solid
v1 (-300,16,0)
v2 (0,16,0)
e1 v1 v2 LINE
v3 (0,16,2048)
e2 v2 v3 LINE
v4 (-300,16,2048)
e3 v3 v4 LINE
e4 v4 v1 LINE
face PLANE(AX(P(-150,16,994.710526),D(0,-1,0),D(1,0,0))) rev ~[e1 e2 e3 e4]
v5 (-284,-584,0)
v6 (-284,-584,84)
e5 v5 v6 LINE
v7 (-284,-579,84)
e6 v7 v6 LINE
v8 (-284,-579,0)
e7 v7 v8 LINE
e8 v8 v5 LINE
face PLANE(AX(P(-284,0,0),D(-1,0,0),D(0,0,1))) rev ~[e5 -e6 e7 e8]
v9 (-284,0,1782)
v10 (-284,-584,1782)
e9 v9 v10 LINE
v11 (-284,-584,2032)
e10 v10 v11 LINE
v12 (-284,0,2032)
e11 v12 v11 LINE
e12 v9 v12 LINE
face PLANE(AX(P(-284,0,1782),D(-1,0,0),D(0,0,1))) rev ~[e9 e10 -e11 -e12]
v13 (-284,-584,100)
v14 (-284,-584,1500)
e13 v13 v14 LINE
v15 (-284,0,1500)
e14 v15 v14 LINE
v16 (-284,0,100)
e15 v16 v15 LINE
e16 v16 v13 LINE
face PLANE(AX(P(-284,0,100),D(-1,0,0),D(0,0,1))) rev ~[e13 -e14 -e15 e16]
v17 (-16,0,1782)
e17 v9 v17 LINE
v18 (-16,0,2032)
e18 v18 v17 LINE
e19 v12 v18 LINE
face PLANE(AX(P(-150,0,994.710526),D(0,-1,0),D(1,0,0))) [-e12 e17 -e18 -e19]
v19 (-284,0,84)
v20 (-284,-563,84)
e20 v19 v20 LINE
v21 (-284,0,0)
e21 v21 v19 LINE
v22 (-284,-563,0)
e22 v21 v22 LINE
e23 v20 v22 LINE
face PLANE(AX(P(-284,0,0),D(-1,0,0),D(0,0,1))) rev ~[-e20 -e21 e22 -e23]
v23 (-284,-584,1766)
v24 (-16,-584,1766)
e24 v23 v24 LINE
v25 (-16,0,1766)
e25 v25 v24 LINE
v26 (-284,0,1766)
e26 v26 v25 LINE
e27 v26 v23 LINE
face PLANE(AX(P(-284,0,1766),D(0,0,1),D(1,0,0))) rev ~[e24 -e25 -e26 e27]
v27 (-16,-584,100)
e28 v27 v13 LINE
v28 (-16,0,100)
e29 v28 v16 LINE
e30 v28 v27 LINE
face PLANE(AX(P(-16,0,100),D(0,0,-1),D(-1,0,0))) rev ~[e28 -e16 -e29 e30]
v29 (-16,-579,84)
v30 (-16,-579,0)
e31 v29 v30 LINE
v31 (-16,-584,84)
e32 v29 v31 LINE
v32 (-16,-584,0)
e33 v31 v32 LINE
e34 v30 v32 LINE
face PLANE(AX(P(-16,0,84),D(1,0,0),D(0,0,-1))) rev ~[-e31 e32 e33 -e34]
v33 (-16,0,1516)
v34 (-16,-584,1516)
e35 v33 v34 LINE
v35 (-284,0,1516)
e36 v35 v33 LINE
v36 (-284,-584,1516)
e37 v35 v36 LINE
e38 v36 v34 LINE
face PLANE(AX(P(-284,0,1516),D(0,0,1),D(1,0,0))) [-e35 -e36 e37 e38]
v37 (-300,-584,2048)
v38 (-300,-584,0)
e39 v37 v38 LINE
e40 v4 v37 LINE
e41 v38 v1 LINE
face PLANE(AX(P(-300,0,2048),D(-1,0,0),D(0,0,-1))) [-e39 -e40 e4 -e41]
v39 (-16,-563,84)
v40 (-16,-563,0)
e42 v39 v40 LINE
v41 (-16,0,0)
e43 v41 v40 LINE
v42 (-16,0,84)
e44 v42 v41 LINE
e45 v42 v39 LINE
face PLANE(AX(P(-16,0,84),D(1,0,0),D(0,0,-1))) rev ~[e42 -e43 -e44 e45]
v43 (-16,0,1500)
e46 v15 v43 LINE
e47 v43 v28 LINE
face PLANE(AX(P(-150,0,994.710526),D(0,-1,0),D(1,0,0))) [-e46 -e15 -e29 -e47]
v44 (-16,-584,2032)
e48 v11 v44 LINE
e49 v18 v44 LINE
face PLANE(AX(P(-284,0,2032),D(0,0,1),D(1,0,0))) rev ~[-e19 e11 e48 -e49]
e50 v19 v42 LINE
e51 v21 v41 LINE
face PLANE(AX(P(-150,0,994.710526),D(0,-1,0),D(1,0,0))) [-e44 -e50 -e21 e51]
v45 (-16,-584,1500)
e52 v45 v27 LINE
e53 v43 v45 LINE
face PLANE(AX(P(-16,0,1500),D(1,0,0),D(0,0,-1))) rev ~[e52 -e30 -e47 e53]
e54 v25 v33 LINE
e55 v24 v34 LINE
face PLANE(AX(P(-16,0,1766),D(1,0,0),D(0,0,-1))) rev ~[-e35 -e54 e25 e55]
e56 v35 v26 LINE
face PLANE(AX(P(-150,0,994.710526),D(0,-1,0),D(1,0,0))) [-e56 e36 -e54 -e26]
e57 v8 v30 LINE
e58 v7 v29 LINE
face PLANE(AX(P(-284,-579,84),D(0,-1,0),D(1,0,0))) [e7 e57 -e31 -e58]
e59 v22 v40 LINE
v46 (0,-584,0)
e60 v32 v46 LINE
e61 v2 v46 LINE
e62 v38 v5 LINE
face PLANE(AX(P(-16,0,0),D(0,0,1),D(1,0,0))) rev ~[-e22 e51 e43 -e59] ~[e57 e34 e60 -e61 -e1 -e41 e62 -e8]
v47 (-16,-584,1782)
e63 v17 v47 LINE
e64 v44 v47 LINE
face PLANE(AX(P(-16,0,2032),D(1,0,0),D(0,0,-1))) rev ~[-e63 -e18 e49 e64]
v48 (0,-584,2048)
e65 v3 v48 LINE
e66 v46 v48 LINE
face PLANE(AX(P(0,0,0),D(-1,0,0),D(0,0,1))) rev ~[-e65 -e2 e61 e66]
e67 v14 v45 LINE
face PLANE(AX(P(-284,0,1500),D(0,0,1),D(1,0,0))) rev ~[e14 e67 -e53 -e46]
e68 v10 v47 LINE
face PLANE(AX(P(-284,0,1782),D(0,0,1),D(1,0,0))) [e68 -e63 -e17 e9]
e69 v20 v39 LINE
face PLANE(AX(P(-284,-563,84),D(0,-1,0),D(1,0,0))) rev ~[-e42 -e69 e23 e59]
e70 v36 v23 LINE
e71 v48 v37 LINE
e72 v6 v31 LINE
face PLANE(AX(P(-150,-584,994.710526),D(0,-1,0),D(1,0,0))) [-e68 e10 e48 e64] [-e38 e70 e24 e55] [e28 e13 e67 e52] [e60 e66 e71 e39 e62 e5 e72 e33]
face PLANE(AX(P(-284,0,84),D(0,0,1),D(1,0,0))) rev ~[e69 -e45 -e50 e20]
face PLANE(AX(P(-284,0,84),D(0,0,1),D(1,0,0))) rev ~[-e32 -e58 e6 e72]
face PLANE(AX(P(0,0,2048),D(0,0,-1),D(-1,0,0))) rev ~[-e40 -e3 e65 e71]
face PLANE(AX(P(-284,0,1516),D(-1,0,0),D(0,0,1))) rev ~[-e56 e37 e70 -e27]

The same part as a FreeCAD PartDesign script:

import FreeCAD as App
import Part
import Sketcher


def add_polygon(sketch, points):
    """Adds a closed chain of lines whose ends are joined by coincident constraints."""
    first, n = sketch.GeometryCount, len(points)
    for a, b in zip(points, points[1:] + points[:1]):
        sketch.addGeometry(Part.LineSegment(App.Vector(*a, 0), App.Vector(*b, 0)), False)
    for i in range(n):
        sketch.addConstraint(Sketcher.Constraint("Coincident", first + i, 2, first + (i + 1) % n, 1))

doc = App.newDocument("Part")
params = doc.addObject("Spreadsheet::Sheet", "Params")
for row, (alias, value) in enumerate([
    ("sketch1_width", "300 mm"),
    ("sketch1_height", "2048 mm"),
    ("pad1_length", "16 mm"),
    ("sketch2_width", "16 mm"),
    ("sketch2_width2", "300 mm"),
    ("sketch2_height", "2048 mm"),
    ("sketch2_height2", "84 mm"),
    ("sketch2_height3", "250 mm"),
    ("pad2_length", "584 mm"),
    ("sketch3_width", "268 mm"),
    ("sketch3_height", "16 mm"),
    ("pad3_length", "84 mm"),
], start=1):
    params.set(f"A{row}", alias)
    params.set(f"B{row}", "=" + value)
    params.setAlias(f"B{row}", alias)

body = doc.addObject("PartDesign::Body", "Body")

# Sketch on XZ plane
sketch1 = body.newObject("Sketcher::SketchObject", "Sketch")
sketch1.AttachmentSupport = (doc.getObject("XZ_Plane"), [""])
sketch1.MapMode = "FlatFace"
add_polygon(sketch1, [(0, 0), (0, 2048), (-300, 2048), (-300, 0)])  # lines 0-3
sketch1.addConstraint(Sketcher.Constraint("Vertical", 0))
sketch1.addConstraint(Sketcher.Constraint("Horizontal", 1))
sketch1.addConstraint(Sketcher.Constraint("Vertical", 2))
sketch1.addConstraint(Sketcher.Constraint("Horizontal", 3))
sketch1.addConstraint(Sketcher.Constraint("Coincident", 3, 2, -1, 1))
sketch1.addConstraint(Sketcher.Constraint("DistanceX", 1, 2, 1, 1, 300.0))
sketch1.addConstraint(Sketcher.Constraint("DistanceY", 0, 1, 0, 2, 2048.0))
sketch1.setExpression("Constraints[9]", "Params.sketch1_width")
sketch1.setExpression("Constraints[10]", "Params.sketch1_height")
pad1 = body.newObject("PartDesign::Pad", "Pad")
pad1.Profile = sketch1
pad1.setExpression("Length", "Params.pad1_length")
pad1.Reversed = True

# Sketch on XZ plane
sketch2 = body.newObject("Sketcher::SketchObject", "Sketch001")
sketch2.AttachmentSupport = (doc.getObject("XZ_Plane"), [""])
sketch2.MapMode = "FlatFace"
add_polygon(sketch2, [(-16, 0), (0, 0), (0, 2048), (-300, 2048), (-300, 0), (-284, 0), (-284, 84), (-16, 84)])  # lines 0-7
add_polygon(sketch2, [(-16, 2032), (-16, 1782), (-284, 1782), (-284, 2032)])  # lines 8-11
add_polygon(sketch2, [(-16, 1766), (-16, 1516), (-284, 1516), (-284, 1766)])  # lines 12-15
add_polygon(sketch2, [(-16, 1500), (-16, 100), (-284, 100), (-284, 1500)])  # lines 16-19
sketch2.addConstraint(Sketcher.Constraint("Horizontal", 0))
sketch2.addConstraint(Sketcher.Constraint("Vertical", 1))
sketch2.addConstraint(Sketcher.Constraint("Horizontal", 2))
sketch2.addConstraint(Sketcher.Constraint("Vertical", 3))
sketch2.addConstraint(Sketcher.Constraint("Horizontal", 4))
sketch2.addConstraint(Sketcher.Constraint("Vertical", 5))
sketch2.addConstraint(Sketcher.Constraint("Horizontal", 6))
sketch2.addConstraint(Sketcher.Constraint("Vertical", 7))
sketch2.addConstraint(Sketcher.Constraint("Vertical", 8))
sketch2.addConstraint(Sketcher.Constraint("Horizontal", 9))
sketch2.addConstraint(Sketcher.Constraint("Vertical", 10))
sketch2.addConstraint(Sketcher.Constraint("Horizontal", 11))
sketch2.addConstraint(Sketcher.Constraint("Vertical", 12))
sketch2.addConstraint(Sketcher.Constraint("Horizontal", 13))
sketch2.addConstraint(Sketcher.Constraint("Vertical", 14))
sketch2.addConstraint(Sketcher.Constraint("Horizontal", 15))
sketch2.addConstraint(Sketcher.Constraint("Vertical", 16))
sketch2.addConstraint(Sketcher.Constraint("Horizontal", 17))
sketch2.addConstraint(Sketcher.Constraint("Vertical", 18))
sketch2.addConstraint(Sketcher.Constraint("Horizontal", 19))
sketch2.addConstraint(Sketcher.Constraint("Coincident", 0, 2, -1, 1))
sketch2.addConstraint(Sketcher.Constraint("PointOnObject", 3, 2, -1))
sketch2.addConstraint(Sketcher.Constraint("Vertical", 7, 2, 8, 2))
sketch2.addConstraint(Sketcher.Constraint("Vertical", 5, 2, 9, 2))
sketch2.addConstraint(Sketcher.Constraint("Vertical", 11, 2, 12, 2))
sketch2.addConstraint(Sketcher.Constraint("Vertical", 10, 2, 13, 2))
sketch2.addConstraint(Sketcher.Constraint("Vertical", 15, 2, 16, 2))
sketch2.addConstraint(Sketcher.Constraint("Vertical", 14, 2, 17, 2))
sketch2.addConstraint(Sketcher.Constraint("Equal", 0, 4))
sketch2.addConstraint(Sketcher.Constraint("Equal", 10, 12))
sketch2.addConstraint(Sketcher.Constraint("DistanceX", 0, 1, 0, 2, 16.0))
sketch2.addConstraint(Sketcher.Constraint("DistanceX", 2, 2, 2, 1, 300.0))
sketch2.addConstraint(Sketcher.Constraint("DistanceY", 1, 1, 1, 2, 2048.0))
sketch2.addConstraint(Sketcher.Constraint("DistanceY", 5, 1, 5, 2, 84.0))
sketch2.addConstraint(Sketcher.Constraint("DistanceY", 8, 2, 8, 1, 250.0))
sketch2.addConstraint(Sketcher.Constraint("DistanceY", 16, 2, 16, 1, 1400.0))
sketch2.addConstraint(Sketcher.Constraint("DistanceY", -1, 1, 8, 2, 1782.0))
sketch2.addConstraint(Sketcher.Constraint("DistanceY", -1, 1, 12, 2, 1516.0))
sketch2.addConstraint(Sketcher.Constraint("DistanceY", -1, 1, 16, 2, 100.0))
sketch2.setExpression("Constraints[50]", "Params.sketch2_width")
sketch2.setExpression("Constraints[51]", "Params.sketch2_width2")
sketch2.setExpression("Constraints[52]", "Params.sketch2_height")
sketch2.setExpression("Constraints[53]", "Params.sketch2_height2")
sketch2.setExpression("Constraints[54]", "Params.sketch2_height3")
pad2 = body.newObject("PartDesign::Pad", "Pad001")
pad2.Profile = sketch2
pad2.setExpression("Length", "Params.pad2_length")

# Sketch on XY plane
sketch3 = body.newObject("Sketcher::SketchObject", "Sketch002")
sketch3.AttachmentSupport = (doc.getObject("XY_Plane"), [""])
sketch3.MapMode = "FlatFace"
sketch3.AttachmentOffset = App.Placement(App.Vector(0, 0, 84), App.Rotation())
add_polygon(sketch3, [(-284, -579), (-284, -563), (-16, -563), (-16, -579)])  # lines 0-3
sketch3.addConstraint(Sketcher.Constraint("Vertical", 0))
sketch3.addConstraint(Sketcher.Constraint("Horizontal", 1))
sketch3.addConstraint(Sketcher.Constraint("Vertical", 2))
sketch3.addConstraint(Sketcher.Constraint("Horizontal", 3))
sketch3.addConstraint(Sketcher.Constraint("DistanceX", 1, 1, 1, 2, 268.0))
sketch3.addConstraint(Sketcher.Constraint("DistanceY", 0, 1, 0, 2, 16.0))
sketch3.addConstraint(Sketcher.Constraint("DistanceX", 0, 2, -1, 1, 284.0))
sketch3.addConstraint(Sketcher.Constraint("DistanceY", 0, 2, -1, 1, 563.0))
sketch3.setExpression("Constraints[8]", "Params.sketch3_width")
sketch3.setExpression("Constraints[9]", "Params.sketch3_height")
pad3 = body.newObject("PartDesign::Pad", "Pad002")
pad3.Profile = sketch3
pad3.setExpression("Length", "Params.pad3_length")
pad3.Reversed = True

doc.recompute()
